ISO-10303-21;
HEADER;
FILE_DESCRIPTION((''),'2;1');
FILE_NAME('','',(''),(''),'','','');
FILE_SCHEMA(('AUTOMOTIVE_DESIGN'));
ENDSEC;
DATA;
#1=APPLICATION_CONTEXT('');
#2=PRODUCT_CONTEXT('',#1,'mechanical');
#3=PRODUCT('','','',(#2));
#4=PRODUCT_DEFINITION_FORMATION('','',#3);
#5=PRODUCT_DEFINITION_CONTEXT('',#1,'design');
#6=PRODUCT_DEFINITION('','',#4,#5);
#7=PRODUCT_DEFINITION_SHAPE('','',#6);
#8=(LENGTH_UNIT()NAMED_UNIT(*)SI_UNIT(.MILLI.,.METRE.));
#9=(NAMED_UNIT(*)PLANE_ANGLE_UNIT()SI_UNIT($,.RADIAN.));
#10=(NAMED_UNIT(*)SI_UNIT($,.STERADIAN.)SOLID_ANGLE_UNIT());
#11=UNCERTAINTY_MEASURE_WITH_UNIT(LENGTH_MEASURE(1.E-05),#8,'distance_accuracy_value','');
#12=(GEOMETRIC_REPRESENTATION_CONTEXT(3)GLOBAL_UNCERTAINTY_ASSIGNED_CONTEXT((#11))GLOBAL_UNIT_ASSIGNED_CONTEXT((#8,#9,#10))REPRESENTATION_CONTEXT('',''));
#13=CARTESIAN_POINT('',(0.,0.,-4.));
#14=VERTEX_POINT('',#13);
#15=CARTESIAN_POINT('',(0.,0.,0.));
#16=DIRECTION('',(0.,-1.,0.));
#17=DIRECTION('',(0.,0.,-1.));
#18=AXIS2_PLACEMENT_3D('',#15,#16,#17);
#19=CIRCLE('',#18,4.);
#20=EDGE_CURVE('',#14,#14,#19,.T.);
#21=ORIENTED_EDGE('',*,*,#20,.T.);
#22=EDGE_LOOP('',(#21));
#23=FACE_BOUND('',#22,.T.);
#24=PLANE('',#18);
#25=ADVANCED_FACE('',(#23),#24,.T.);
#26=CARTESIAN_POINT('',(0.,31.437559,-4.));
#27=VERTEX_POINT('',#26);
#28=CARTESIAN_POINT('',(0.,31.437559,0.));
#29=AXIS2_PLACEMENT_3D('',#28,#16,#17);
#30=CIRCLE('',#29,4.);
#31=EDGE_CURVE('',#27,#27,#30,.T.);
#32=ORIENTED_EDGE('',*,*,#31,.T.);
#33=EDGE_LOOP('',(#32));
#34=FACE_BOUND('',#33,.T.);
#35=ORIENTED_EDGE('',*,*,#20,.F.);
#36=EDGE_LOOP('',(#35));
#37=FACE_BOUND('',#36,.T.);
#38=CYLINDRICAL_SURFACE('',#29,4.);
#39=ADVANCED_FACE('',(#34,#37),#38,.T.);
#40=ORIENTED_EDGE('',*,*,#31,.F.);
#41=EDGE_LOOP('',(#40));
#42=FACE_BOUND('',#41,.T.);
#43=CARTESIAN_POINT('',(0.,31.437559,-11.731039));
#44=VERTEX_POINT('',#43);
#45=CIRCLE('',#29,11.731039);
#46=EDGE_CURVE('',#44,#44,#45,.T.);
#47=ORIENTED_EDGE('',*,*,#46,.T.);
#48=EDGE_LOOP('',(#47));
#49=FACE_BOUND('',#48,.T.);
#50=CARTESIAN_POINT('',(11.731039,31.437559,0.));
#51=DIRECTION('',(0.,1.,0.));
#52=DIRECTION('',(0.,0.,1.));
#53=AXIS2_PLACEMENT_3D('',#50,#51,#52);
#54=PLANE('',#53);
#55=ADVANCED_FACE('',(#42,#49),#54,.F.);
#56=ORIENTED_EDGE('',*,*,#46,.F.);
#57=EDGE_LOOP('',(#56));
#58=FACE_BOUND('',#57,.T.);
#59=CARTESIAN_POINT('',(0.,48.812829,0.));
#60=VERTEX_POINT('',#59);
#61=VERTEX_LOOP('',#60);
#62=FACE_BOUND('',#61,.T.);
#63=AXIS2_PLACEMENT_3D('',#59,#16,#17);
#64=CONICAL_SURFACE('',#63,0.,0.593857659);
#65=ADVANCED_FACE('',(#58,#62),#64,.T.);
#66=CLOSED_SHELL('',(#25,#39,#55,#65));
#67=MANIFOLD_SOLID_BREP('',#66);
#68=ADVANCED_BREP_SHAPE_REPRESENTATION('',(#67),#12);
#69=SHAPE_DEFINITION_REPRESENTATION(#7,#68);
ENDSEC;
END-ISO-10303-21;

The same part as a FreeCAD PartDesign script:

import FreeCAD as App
import Part
import Sketcher
from FreeCAD import Vector
Q = App.Units.Quantity

doc = App.newDocument("Part")
body = doc.addObject("PartDesign::Body", "Body")

# Sketch on XY plane
sketch1 = body.newObject("Sketcher::SketchObject", "Sketch")
sketch1.AttachmentSupport = (doc.getObject("XY_Plane"), [""])
sketch1.MapMode = "FlatFace"
sketch1.addGeometry(Part.LineSegment(Vector(0, 48.8, 0), Vector(0, 0, 0)), False)
sketch1.addGeometry(Part.LineSegment(Vector(0, 0, 0), Vector(4, 0, 0)), False)
sketch1.addGeometry(Part.LineSegment(Vector(4, 0, 0), Vector(4, 31.4, 0)), False)
sketch1.addGeometry(Part.LineSegment(Vector(4, 31.4, 0), Vector(11.7, 31.4, 0)), False)
sketch1.addGeometry(Part.LineSegment(Vector(11.7, 31.4, 0), Vector(0, 48.8, 0)), False)
sketch1.addConstraint(Sketcher.Constraint("Coincident", 0, 2, 1, 1))
sketch1.addConstraint(Sketcher.Constraint("Coincident", 1, 2, 2, 1))
sketch1.addConstraint(Sketcher.Constraint("Coincident", 2, 2, 3, 1))
sketch1.addConstraint(Sketcher.Constraint("Coincident", 3, 2, 4, 1))
sketch1.addConstraint(Sketcher.Constraint("Coincident", 4, 2, 0, 1))
sketch1.addConstraint(Sketcher.Constraint("Vertical", 0))
sketch1.addConstraint(Sketcher.Constraint("Horizontal", 1))
sketch1.addConstraint(Sketcher.Constraint("Vertical", 2))
sketch1.addConstraint(Sketcher.Constraint("Horizontal", 3))
sketch1.addConstraint(Sketcher.Constraint("Coincident", 0, 2, -1, 1))
sketch1.addConstraint(Sketcher.Constraint("DistanceX", 1, 1, 1, 2, Q("4 mm")))
sketch1.addConstraint(Sketcher.Constraint("DistanceX", 3, 1, 3, 2, Q("7.731039 mm")))
sketch1.addConstraint(Sketcher.Constraint("DistanceY", 0, 2, 0, 1, Q("48.812829 mm")))
sketch1.addConstraint(Sketcher.Constraint("DistanceY", 2, 1, 2, 2, Q("31.437559 mm")))
revolution = body.newObject("PartDesign::Revolution", "Revolution")
revolution.Profile = sketch1
revolution.ReferenceAxis = (sketch1, ["V_Axis"])
revolution.Angle = 360

doc.recompute()
